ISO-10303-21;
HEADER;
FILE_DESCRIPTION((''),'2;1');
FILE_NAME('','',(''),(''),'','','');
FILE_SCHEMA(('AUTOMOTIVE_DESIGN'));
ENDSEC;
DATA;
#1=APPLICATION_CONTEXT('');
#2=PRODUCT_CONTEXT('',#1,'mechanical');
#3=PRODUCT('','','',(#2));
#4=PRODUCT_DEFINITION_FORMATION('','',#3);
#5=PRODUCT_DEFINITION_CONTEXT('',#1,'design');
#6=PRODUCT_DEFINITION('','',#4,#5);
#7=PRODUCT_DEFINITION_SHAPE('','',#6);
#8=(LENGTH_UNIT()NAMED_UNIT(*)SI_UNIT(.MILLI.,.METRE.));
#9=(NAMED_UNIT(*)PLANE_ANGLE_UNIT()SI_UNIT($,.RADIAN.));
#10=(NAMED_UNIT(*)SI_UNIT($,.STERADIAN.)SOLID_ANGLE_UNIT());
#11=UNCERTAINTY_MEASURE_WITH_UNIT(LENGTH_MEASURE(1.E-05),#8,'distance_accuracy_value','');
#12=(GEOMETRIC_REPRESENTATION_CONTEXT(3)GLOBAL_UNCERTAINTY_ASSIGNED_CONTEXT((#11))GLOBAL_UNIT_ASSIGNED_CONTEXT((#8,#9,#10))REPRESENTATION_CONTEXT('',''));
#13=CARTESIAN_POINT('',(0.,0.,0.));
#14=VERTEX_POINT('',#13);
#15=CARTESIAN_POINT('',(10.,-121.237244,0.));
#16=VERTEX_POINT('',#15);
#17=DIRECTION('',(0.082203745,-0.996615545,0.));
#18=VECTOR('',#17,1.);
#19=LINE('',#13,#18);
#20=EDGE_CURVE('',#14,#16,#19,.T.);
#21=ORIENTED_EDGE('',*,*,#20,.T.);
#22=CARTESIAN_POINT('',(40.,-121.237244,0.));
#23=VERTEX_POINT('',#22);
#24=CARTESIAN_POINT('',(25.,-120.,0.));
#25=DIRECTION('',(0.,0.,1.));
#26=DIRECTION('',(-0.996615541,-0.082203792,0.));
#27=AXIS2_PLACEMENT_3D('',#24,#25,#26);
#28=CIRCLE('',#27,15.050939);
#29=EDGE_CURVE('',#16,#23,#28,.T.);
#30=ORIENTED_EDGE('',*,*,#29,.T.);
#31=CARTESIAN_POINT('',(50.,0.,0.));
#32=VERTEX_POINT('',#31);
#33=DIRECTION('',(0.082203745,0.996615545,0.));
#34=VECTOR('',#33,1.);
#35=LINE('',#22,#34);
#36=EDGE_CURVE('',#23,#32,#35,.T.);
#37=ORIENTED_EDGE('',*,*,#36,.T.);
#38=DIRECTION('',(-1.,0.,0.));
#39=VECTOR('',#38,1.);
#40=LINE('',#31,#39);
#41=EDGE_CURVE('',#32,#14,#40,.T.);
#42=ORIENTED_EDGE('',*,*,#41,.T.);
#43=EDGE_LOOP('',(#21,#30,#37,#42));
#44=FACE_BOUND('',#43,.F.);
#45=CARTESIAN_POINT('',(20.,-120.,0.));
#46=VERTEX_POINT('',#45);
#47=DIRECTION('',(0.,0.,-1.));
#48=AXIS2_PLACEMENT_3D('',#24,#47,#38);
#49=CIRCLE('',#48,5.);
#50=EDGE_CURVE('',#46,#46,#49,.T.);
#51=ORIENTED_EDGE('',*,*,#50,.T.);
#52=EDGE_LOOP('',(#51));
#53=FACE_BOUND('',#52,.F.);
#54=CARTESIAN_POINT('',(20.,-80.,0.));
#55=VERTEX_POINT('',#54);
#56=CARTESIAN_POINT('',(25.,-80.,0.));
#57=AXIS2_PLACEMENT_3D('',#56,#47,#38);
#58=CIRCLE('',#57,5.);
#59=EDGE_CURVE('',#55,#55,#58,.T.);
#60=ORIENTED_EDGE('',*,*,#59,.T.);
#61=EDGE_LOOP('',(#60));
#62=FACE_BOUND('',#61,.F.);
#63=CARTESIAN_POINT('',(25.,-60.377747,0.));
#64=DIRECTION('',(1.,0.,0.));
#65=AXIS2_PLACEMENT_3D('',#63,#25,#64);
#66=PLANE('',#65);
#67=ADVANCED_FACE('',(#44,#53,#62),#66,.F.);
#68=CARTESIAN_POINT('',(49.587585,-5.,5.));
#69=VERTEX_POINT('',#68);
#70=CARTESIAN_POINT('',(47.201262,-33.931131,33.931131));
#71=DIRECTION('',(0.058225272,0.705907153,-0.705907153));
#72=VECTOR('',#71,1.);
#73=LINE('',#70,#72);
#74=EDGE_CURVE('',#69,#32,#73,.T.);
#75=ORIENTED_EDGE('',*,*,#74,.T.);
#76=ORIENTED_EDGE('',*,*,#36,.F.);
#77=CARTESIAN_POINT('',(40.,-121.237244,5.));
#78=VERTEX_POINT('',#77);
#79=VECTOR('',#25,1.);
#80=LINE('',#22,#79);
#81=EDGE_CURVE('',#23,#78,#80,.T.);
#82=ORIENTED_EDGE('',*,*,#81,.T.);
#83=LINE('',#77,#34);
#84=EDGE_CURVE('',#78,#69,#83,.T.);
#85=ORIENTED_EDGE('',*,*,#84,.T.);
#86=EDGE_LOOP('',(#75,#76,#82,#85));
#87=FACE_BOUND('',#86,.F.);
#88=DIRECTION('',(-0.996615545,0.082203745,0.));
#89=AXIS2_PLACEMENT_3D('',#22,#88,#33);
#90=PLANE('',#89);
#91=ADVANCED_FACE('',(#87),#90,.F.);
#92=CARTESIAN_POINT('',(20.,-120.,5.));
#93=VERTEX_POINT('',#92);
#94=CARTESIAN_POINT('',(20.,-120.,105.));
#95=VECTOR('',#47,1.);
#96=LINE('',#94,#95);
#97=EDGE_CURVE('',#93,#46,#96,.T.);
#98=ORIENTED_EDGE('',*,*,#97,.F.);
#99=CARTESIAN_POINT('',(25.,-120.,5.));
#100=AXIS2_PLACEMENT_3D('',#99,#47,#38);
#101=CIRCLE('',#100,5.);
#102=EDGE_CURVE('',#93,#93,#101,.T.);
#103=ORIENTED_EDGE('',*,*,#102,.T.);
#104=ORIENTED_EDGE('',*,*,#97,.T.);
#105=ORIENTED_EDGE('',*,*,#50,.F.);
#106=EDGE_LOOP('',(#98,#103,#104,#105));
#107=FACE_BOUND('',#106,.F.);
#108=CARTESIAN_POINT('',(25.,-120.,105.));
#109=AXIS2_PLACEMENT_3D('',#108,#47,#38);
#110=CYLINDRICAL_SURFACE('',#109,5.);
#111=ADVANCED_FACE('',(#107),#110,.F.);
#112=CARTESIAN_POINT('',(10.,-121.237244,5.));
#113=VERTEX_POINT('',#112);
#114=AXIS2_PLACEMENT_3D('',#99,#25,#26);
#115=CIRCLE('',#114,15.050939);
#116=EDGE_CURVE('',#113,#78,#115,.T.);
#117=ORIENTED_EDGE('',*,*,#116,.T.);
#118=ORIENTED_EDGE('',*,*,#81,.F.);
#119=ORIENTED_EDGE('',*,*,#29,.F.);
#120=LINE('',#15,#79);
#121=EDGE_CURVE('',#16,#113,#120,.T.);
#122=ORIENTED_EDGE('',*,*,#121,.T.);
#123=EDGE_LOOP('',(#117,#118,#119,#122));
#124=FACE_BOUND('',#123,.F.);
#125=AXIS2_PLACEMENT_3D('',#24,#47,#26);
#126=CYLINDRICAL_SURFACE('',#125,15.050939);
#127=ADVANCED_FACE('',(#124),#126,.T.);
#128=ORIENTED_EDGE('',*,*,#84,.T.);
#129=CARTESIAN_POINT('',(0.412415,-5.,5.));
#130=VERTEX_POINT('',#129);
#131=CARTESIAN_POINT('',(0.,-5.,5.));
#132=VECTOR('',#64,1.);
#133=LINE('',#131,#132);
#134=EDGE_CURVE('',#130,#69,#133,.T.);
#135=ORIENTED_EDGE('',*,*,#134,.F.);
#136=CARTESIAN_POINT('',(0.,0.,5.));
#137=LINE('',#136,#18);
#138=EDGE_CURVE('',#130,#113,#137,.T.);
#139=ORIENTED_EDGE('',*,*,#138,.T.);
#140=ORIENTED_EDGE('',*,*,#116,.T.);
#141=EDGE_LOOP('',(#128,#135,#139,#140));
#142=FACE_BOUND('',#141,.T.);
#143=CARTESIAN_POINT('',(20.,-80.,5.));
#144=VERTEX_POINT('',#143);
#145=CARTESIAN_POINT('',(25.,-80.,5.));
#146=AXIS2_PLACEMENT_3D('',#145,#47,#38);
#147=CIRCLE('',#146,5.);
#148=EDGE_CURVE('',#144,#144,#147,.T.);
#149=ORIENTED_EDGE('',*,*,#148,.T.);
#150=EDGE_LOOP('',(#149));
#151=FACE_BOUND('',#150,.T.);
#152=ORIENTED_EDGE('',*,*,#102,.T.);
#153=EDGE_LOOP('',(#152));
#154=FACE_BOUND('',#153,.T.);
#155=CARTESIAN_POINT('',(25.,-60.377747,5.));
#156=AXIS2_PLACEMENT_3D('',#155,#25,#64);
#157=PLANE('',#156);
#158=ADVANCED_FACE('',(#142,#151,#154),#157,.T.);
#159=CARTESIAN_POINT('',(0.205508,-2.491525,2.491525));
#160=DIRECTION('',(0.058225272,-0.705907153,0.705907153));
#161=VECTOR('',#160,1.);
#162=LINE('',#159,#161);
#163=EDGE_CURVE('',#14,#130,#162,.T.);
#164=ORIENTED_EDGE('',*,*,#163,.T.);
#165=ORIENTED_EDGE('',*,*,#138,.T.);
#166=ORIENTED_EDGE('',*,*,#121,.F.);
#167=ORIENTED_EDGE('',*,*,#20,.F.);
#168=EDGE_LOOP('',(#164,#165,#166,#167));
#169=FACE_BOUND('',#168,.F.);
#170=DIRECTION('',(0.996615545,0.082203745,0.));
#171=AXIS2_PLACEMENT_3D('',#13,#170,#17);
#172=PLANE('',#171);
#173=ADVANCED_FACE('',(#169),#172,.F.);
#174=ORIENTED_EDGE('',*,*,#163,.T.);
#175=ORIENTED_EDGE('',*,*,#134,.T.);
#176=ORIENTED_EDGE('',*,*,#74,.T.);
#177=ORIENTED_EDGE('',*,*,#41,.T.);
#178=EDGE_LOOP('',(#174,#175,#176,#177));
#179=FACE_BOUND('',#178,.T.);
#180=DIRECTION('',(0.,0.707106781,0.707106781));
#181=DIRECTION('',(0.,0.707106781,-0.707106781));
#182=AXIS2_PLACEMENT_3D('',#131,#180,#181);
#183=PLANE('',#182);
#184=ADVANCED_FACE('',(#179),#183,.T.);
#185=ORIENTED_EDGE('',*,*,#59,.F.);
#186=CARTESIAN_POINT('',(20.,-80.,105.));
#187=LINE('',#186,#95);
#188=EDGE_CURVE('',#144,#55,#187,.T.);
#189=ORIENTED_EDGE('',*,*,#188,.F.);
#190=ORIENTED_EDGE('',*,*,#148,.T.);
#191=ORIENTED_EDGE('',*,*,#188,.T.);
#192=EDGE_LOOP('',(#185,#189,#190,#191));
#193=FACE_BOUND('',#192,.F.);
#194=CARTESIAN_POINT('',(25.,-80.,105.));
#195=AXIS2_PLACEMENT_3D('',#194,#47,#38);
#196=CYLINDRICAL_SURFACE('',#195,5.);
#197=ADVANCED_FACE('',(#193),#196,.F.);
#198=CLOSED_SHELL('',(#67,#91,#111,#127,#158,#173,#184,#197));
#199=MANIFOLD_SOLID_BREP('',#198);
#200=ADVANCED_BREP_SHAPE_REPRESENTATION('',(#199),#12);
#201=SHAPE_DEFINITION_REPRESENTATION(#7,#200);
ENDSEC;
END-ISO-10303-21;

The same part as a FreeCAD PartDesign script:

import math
import FreeCAD as App
import Part
import Sketcher
from FreeCAD import Vector
Q = App.Units.Quantity


def add_polygon(sketch, points):
    """Adds a closed chain of lines whose ends are joined by coincident constraints."""
    first, n = sketch.GeometryCount, len(points)
    for a, b in zip(points, points[1:] + points[:1]):
        sketch.addGeometry(Part.LineSegment(App.Vector(*a, 0), App.Vector(*b, 0)), False)
    for i in range(n):
        sketch.addConstraint(Sketcher.Constraint("Coincident", first + i, 2, first + (i + 1) % n, 1))

doc = App.newDocument("Part")
body = doc.addObject("PartDesign::Body", "Body")

sketch1 = doc.addObject("Sketcher::SketchObject", "Sketch")
body.addObject(sketch1)
sketch1.AttachmentSupport = (doc.XY_Plane, [""])
sketch1.MapMode = "FlatFace"
sketch1.addGeometry([
    Part.LineSegment(Vector(50, 0, 0), Vector(0, 0, 0)),
    Part.LineSegment(Vector(0, 0, 0), Vector(10, -121, 0)),
    Part.ArcOfCircle(Part.Circle(Vector(25, -120, 0), Vector(0, 0, 1), 15), math.radians(-175), math.radians(-5)),
    Part.LineSegment(Vector(40, -121, 0), Vector(50, 0, 0)),
], False)
sketch1.addConstraint([
    Sketcher.Constraint("Coincident", 0, 2, 1, 1),
    Sketcher.Constraint("Tangent", 1, 2, 2, 1),
    Sketcher.Constraint("Tangent", 2, 2, 3, 1),
    Sketcher.Constraint("Coincident", 3, 2, 0, 1),
    Sketcher.Constraint("Horizontal", 0),
    Sketcher.Constraint("Coincident", 0, 2, -1, 1),
    Sketcher.Constraint("Horizontal", 1, 2, 2, 2),
    Sketcher.Constraint("DistanceX", 0, 2, 0, 1, Q("50 mm")),
    Sketcher.Constraint("DistanceY", 2, 3, -1, 1, Q("120 mm")),
    Sketcher.Constraint("DistanceX", -1, 1, 1, 2, Q("10 mm")),
])
pad1 = doc.addObject("PartDesign::Pad", "Pad")
body.addObject(pad1)
pad1.Profile = sketch1
pad1.Length = 5

sketch2 = doc.addObject("Sketcher::SketchObject", "Sketch001")
body.addObject(sketch2)
sketch2.AttachmentSupport = (doc.YZ_Plane, [""])
sketch2.MapMode = "FlatFace"
add_polygon(sketch2, [(-5, 5), (0, 0), (0, 5)])
sketch2.addConstraint([
    Sketcher.Constraint("Vertical", 1),
    Sketcher.Constraint("Horizontal", 2),
    Sketcher.Constraint("Coincident", 0, 2, -1, 1),
    Sketcher.Constraint("Equal", 2, 1),
    Sketcher.Constraint("DistanceX", 2, 2, 2, 1, Q("5 mm")),
])
pocket1 = doc.addObject("PartDesign::Pocket", "Pocket")
body.addObject(pocket1)
pocket1.Profile = sketch2
pocket1.Type = "ThroughAll"
pocket1.Reversed = True

sketch3 = doc.addObject("Sketcher::SketchObject", "Sketch002")
body.addObject(sketch3)
sketch3.AttachmentSupport = (doc.XY_Plane, [""])
sketch3.MapMode = "FlatFace"
sketch3.AttachmentOffset = App.Placement(Vector(0, 0, 5), App.Rotation())
sketch3.addGeometry([
    Part.Circle(Vector(25, -120, 0), Vector(0, 0, 1), 5),
    Part.Circle(Vector(25, -80, 0), Vector(0, 0, 1), 5),
], False)
sketch3.addConstraint([
    Sketcher.Constraint("Equal", 0, 1),
    Sketcher.Constraint("Vertical", 0, 3, 1, 3),
    Sketcher.Constraint("Diameter", 0, Q("10 mm")),
    Sketcher.Constraint("DistanceX", -1, 1, 0, 3, Q("25 mm")),
    Sketcher.Constraint("DistanceY", 0, 3, -1, 1, Q("120 mm")),
    Sketcher.Constraint("DistanceY", 1, 3, -1, 1, Q("80 mm")),
])
doc.recompute()
hole = doc.addObject("PartDesign::Hole", "Hole")
body.addObject(hole)
hole.Profile = sketch3
hole.ThreadType = "None"
hole.Diameter = 10
hole.DepthType = "Dimension"
hole.Depth = 100
hole.DrillPoint = "Flat"

doc.recompute()
